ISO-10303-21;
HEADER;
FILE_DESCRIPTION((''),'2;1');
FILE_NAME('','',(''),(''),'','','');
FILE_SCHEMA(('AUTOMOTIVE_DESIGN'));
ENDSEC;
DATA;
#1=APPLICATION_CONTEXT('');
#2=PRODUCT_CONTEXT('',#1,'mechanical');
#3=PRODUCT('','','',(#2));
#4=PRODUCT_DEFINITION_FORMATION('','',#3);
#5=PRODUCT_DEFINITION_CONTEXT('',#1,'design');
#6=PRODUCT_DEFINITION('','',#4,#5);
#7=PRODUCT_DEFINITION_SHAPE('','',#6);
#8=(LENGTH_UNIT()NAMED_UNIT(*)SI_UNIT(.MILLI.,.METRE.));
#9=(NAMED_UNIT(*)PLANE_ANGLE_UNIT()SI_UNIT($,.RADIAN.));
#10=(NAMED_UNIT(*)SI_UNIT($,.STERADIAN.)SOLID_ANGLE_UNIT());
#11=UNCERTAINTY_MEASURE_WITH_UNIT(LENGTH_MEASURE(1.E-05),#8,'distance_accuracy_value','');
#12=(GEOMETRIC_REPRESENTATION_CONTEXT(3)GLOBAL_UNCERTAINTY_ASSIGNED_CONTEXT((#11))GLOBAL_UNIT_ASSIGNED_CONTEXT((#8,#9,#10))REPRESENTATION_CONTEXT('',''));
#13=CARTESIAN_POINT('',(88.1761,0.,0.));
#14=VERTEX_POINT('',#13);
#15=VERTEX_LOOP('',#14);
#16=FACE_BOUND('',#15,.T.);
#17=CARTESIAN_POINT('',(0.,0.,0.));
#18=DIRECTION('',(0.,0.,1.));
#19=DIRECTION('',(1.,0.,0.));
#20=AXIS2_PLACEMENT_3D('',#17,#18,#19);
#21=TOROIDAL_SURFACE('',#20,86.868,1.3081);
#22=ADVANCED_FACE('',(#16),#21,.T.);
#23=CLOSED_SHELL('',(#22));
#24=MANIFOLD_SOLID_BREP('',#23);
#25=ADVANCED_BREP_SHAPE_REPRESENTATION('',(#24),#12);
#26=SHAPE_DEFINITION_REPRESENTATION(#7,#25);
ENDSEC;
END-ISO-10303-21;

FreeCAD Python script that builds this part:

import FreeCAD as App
import Part
import Sketcher
from FreeCAD import Vector
Q = App.Units.Quantity

doc = App.newDocument("Part")
body = doc.addObject("PartDesign::Body", "Body")

# Sketch on YZ plane
sketch1 = doc.addObject("Sketcher::SketchObject", "Sketch")
body.addObject(sketch1)
sketch1.AttachmentSupport = (doc.YZ_Plane, [""])
sketch1.MapMode = "FlatFace"
sketch1.addGeometry(Part.Circle(Vector(-86.9, 0, 0), Vector(0, 0, 1), 1.3), False)
sketch1.addConstraint([
    Sketcher.Constraint("PointOnObject", 0, 3, -1),
    Sketcher.Constraint("Diameter", 0, Q("0.103 in")),
    Sketcher.Constraint("DistanceX", 0, 3, -1, 1, Q("3.42 in")),
])
revolution = doc.addObject("PartDesign::Revolution", "Revolution")
body.addObject(revolution)
revolution.Profile = sketch1
revolution.ReferenceAxis = (sketch1, ["V_Axis"])
revolution.Angle = 360

doc.recompute()
